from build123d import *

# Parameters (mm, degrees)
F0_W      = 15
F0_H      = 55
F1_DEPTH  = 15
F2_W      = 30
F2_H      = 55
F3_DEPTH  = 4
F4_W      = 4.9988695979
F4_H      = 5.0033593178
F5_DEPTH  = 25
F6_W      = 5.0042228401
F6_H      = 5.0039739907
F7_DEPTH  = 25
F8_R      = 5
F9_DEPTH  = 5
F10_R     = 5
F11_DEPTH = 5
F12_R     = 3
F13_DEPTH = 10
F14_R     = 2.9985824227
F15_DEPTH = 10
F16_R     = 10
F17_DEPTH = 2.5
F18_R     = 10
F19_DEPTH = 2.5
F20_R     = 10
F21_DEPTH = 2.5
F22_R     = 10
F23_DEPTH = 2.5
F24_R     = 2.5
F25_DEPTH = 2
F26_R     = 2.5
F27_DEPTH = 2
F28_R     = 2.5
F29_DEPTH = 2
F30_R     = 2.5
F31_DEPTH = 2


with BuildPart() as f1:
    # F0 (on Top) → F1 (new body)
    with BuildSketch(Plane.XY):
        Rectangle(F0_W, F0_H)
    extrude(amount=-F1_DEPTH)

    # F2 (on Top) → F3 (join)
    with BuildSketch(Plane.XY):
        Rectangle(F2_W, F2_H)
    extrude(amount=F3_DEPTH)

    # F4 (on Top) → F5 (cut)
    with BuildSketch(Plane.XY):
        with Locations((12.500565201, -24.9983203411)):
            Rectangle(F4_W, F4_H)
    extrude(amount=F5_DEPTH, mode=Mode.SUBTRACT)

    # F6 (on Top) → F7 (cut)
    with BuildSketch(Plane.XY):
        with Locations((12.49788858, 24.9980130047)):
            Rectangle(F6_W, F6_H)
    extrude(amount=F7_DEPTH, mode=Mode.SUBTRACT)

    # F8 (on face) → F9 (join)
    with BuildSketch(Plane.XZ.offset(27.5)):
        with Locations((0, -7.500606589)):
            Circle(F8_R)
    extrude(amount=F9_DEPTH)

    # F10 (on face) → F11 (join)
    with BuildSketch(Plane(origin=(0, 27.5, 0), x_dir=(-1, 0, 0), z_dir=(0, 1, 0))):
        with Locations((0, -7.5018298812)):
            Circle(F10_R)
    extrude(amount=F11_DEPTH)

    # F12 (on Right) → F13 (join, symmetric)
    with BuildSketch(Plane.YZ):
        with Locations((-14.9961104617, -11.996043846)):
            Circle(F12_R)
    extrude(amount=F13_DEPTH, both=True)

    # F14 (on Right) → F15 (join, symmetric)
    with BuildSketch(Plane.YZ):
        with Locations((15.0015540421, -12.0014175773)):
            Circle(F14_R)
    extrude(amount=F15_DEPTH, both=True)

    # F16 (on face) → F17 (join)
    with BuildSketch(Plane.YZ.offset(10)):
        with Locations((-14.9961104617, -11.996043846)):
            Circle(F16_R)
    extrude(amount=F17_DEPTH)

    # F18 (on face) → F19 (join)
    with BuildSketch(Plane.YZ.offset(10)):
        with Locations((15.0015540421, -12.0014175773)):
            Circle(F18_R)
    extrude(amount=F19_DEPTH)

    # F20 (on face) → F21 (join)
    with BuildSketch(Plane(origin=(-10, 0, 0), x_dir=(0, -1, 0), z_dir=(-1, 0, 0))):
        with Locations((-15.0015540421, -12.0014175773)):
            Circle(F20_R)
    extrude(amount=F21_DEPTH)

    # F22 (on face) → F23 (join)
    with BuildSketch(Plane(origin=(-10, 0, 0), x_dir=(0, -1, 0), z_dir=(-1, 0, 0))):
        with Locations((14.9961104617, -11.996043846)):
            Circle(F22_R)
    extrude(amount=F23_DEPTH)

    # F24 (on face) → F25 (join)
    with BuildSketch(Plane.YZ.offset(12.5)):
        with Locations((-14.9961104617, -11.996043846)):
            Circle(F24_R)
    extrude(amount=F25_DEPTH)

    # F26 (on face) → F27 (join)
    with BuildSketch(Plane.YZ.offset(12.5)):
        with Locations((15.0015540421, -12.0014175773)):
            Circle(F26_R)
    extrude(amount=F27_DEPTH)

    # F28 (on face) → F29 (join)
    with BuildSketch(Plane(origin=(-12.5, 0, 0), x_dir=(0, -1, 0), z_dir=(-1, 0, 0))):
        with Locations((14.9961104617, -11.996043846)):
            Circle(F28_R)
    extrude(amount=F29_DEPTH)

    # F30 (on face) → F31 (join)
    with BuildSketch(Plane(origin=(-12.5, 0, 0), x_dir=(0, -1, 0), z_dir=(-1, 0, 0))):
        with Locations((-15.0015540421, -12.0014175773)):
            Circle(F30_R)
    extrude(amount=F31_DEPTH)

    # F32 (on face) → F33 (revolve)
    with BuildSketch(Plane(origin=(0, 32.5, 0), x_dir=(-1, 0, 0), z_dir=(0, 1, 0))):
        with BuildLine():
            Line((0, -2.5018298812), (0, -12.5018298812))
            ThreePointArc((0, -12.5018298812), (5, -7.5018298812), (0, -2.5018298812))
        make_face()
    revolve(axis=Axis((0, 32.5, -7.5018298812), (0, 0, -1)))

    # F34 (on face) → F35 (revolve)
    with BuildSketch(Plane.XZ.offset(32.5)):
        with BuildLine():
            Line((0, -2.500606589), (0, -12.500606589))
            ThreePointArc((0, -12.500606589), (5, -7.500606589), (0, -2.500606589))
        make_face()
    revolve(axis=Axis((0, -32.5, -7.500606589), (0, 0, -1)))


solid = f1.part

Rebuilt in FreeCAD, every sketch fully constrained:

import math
import FreeCAD as App
import Part
import Sketcher
from FreeCAD import Vector


def add_polygon(sketch, points):
    """Adds a closed chain of lines whose ends are joined by coincident constraints."""
    first, n = sketch.GeometryCount, len(points)
    for a, b in zip(points, points[1:] + points[:1]):
        sketch.addGeometry(Part.LineSegment(App.Vector(*a, 0), App.Vector(*b, 0)), False)
    for i in range(n):
        sketch.addConstraint(Sketcher.Constraint("Coincident", first + i, 2, first + (i + 1) % n, 1))

doc = App.newDocument("Part")
body = doc.addObject("PartDesign::Body", "Body")

# Sketch on XY plane
sketch1 = body.newObject("Sketcher::SketchObject", "Sketch")
sketch1.AttachmentSupport = (doc.getObject("XY_Plane"), [""])
sketch1.MapMode = "FlatFace"
add_polygon(sketch1, [(-7.5, 27.5), (-7.5, -27.5), (7.5, -27.5), (7.5, 27.5)])  # lines 0-3
sketch1.addConstraint([
    Sketcher.Constraint("Vertical", 0),
    Sketcher.Constraint("Horizontal", 1),
    Sketcher.Constraint("Vertical", 2),
    Sketcher.Constraint("Horizontal", 3),
    Sketcher.Constraint("Symmetric", 0, 2, 2, 2, -1, 1),
    Sketcher.Constraint("DistanceX", 1, 1, 1, 2, 15.0),
    Sketcher.Constraint("DistanceY", 0, 2, 0, 1, 55.0),
])
pad1 = body.newObject("PartDesign::Pad", "Pad")
pad1.Profile = sketch1
pad1.Length = 15
pad1.Reversed = True

# Sketch on XY plane
sketch2 = body.newObject("Sketcher::SketchObject", "Sketch001")
sketch2.AttachmentSupport = (doc.getObject("XY_Plane"), [""])
sketch2.MapMode = "FlatFace"
add_polygon(sketch2, [(-15, 27.5), (-15, -27.5), (15, -27.5), (15, 27.5)])  # lines 0-3
sketch2.addConstraint([
    Sketcher.Constraint("Vertical", 0),
    Sketcher.Constraint("Horizontal", 1),
    Sketcher.Constraint("Vertical", 2),
    Sketcher.Constraint("Horizontal", 3),
    Sketcher.Constraint("Symmetric", 0, 2, 2, 2, -1, 1),
    Sketcher.Constraint("DistanceX", 1, 1, 1, 2, 30.0),
    Sketcher.Constraint("DistanceY", 0, 2, 0, 1, 55.0),
])
pad2 = body.newObject("PartDesign::Pad", "Pad001")
pad2.Profile = sketch2
pad2.Length = 4

# Sketch on XY plane
sketch3 = body.newObject("Sketcher::SketchObject", "Sketch002")
sketch3.AttachmentSupport = (doc.getObject("XY_Plane"), [""])
sketch3.MapMode = "FlatFace"
add_polygon(sketch3, [(10.00113, -22.496641), (10.00113, -27.5), (15, -27.5), (15, -22.496641)])  # lines 0-3
sketch3.addConstraint([
    Sketcher.Constraint("Vertical", 0),
    Sketcher.Constraint("Horizontal", 1),
    Sketcher.Constraint("Vertical", 2),
    Sketcher.Constraint("Horizontal", 3),
    Sketcher.Constraint("DistanceX", -1, 1, 1, 2, 15.0),
    Sketcher.Constraint("DistanceY", 0, 2, -1, 1, 27.5),
    Sketcher.Constraint("DistanceX", 1, 1, 1, 2, 4.99887),
    Sketcher.Constraint("DistanceY", 0, 2, 0, 1, 5.003359),
])
pocket1 = body.newObject("PartDesign::Pocket", "Pocket")
pocket1.Profile = sketch3
pocket1.Length = 25
pocket1.Reversed = True

# Sketch on XY plane
sketch4 = body.newObject("Sketcher::SketchObject", "Sketch003")
sketch4.AttachmentSupport = (doc.getObject("XY_Plane"), [""])
sketch4.MapMode = "FlatFace"
add_polygon(sketch4, [(9.995777, 27.5), (9.995777, 22.496026), (15, 22.496026), (15, 27.5)])  # lines 0-3
sketch4.addConstraint([
    Sketcher.Constraint("Vertical", 0),
    Sketcher.Constraint("Horizontal", 1),
    Sketcher.Constraint("Vertical", 2),
    Sketcher.Constraint("Horizontal", 3),
    Sketcher.Constraint("DistanceX", -1, 1, 1, 2, 15.0),
    Sketcher.Constraint("DistanceY", -1, 1, 2, 2, 27.5),
    Sketcher.Constraint("DistanceX", 1, 1, 1, 2, 5.004223),
    Sketcher.Constraint("DistanceY", 0, 2, 0, 1, 5.003974),
])
pocket2 = body.newObject("PartDesign::Pocket", "Pocket001")
pocket2.Profile = sketch4
pocket2.Length = 25
pocket2.Reversed = True

# Sketch on XZ plane
sketch5 = body.newObject("Sketcher::SketchObject", "Sketch004")
sketch5.AttachmentSupport = (doc.getObject("XZ_Plane"), [""])
sketch5.MapMode = "FlatFace"
sketch5.AttachmentOffset = App.Placement(Vector(0, 0, 27.5), App.Rotation())
sketch5.addGeometry(Part.Circle(Vector(0, -7.500607, 0), Vector(0, 0, 1), 5), False)
sketch5.addConstraint([
    Sketcher.Constraint("PointOnObject", 0, 3, -2),
    Sketcher.Constraint("Diameter", 0, 10.0),
    Sketcher.Constraint("DistanceY", 0, 3, -1, 1, 7.500607),
])
pad3 = body.newObject("PartDesign::Pad", "Pad002")
pad3.Profile = sketch5
pad3.Length = 5

# Sketch on XZ plane
sketch6 = body.newObject("Sketcher::SketchObject", "Sketch005")
sketch6.AttachmentSupport = (doc.getObject("XZ_Plane"), [""])
sketch6.MapMode = "FlatFace"
sketch6.AttachmentOffset = App.Placement(Vector(0, 0, -27.5), App.Rotation())
sketch6.addGeometry(Part.Circle(Vector(0, -7.50183, 0), Vector(0, 0, 1), 5), False)
sketch6.addConstraint([
    Sketcher.Constraint("PointOnObject", 0, 3, -2),
    Sketcher.Constraint("Diameter", 0, 10.0),
    Sketcher.Constraint("DistanceY", 0, 3, -1, 1, 7.50183),
])
pad4 = body.newObject("PartDesign::Pad", "Pad003")
pad4.Profile = sketch6
pad4.Length = 5
pad4.Reversed = True

# Sketch on YZ plane
sketch7 = body.newObject("Sketcher::SketchObject", "Sketch006")
sketch7.AttachmentSupport = (doc.getObject("YZ_Plane"), [""])
sketch7.MapMode = "FlatFace"
sketch7.addGeometry(Part.Circle(Vector(-14.99611, -11.996044, 0), Vector(0, 0, 1), 3), False)
sketch7.addConstraint([
    Sketcher.Constraint("Diameter", 0, 6.0),
    Sketcher.Constraint("DistanceX", 0, 3, -1, 1, 14.99611),
    Sketcher.Constraint("DistanceY", 0, 3, -1, 1, 11.996044),
])
pad5 = body.newObject("PartDesign::Pad", "Pad004")
pad5.Profile = sketch7
pad5.Length = 20
pad5.Midplane = True

# Sketch on YZ plane
sketch8 = body.newObject("Sketcher::SketchObject", "Sketch007")
sketch8.AttachmentSupport = (doc.getObject("YZ_Plane"), [""])
sketch8.MapMode = "FlatFace"
sketch8.addGeometry(Part.Circle(Vector(15.001554, -12.001418, 0), Vector(0, 0, 1), 2.998582), False)
sketch8.addConstraint([
    Sketcher.Constraint("Diameter", 0, 5.997165),
    Sketcher.Constraint("DistanceX", -1, 1, 0, 3, 15.001554),
    Sketcher.Constraint("DistanceY", 0, 3, -1, 1, 12.001418),
])
pad6 = body.newObject("PartDesign::Pad", "Pad005")
pad6.Profile = sketch8
pad6.Length = 20
pad6.Midplane = True

# Sketch on YZ plane
sketch9 = body.newObject("Sketcher::SketchObject", "Sketch008")
sketch9.AttachmentSupport = (doc.getObject("YZ_Plane"), [""])
sketch9.MapMode = "FlatFace"
sketch9.AttachmentOffset = App.Placement(Vector(0, 0, 10), App.Rotation())
sketch9.addGeometry(Part.Circle(Vector(-14.99611, -11.996044, 0), Vector(0, 0, 1), 10), False)
sketch9.addConstraint([
    Sketcher.Constraint("Diameter", 0, 20.0),
    Sketcher.Constraint("DistanceX", 0, 3, -1, 1, 14.99611),
    Sketcher.Constraint("DistanceY", 0, 3, -1, 1, 11.996044),
])
pad7 = body.newObject("PartDesign::Pad", "Pad006")
pad7.Profile = sketch9
pad7.Length = 2.5

# Sketch on YZ plane
sketch10 = body.newObject("Sketcher::SketchObject", "Sketch009")
sketch10.AttachmentSupport = (doc.getObject("YZ_Plane"), [""])
sketch10.MapMode = "FlatFace"
sketch10.AttachmentOffset = App.Placement(Vector(0, 0, 10), App.Rotation())
sketch10.addGeometry(Part.Circle(Vector(15.001554, -12.001418, 0), Vector(0, 0, 1), 10), False)
sketch10.addConstraint([
    Sketcher.Constraint("Diameter", 0, 20.0),
    Sketcher.Constraint("DistanceX", -1, 1, 0, 3, 15.001554),
    Sketcher.Constraint("DistanceY", 0, 3, -1, 1, 12.001418),
])
pad8 = body.newObject("PartDesign::Pad", "Pad007")
pad8.Profile = sketch10
pad8.Length = 2.5

# Sketch on YZ plane
sketch11 = body.newObject("Sketcher::SketchObject", "Sketch010")
sketch11.AttachmentSupport = (doc.getObject("YZ_Plane"), [""])
sketch11.MapMode = "FlatFace"
sketch11.AttachmentOffset = App.Placement(Vector(0, 0, -10), App.Rotation())
sketch11.addGeometry(Part.Circle(Vector(15.001554, -12.001418, 0), Vector(0, 0, 1), 10), False)
sketch11.addConstraint([
    Sketcher.Constraint("Diameter", 0, 20.0),
    Sketcher.Constraint("DistanceX", -1, 1, 0, 3, 15.001554),
    Sketcher.Constraint("DistanceY", 0, 3, -1, 1, 12.001418),
])
pad9 = body.newObject("PartDesign::Pad", "Pad008")
pad9.Profile = sketch11
pad9.Length = 2.5
pad9.Reversed = True

# Sketch on YZ plane
sketch12 = body.newObject("Sketcher::SketchObject", "Sketch011")
sketch12.AttachmentSupport = (doc.getObject("YZ_Plane"), [""])
sketch12.MapMode = "FlatFace"
sketch12.AttachmentOffset = App.Placement(Vector(0, 0, -10), App.Rotation())
sketch12.addGeometry(Part.Circle(Vector(-14.99611, -11.996044, 0), Vector(0, 0, 1), 10), False)
sketch12.addConstraint([
    Sketcher.Constraint("Diameter", 0, 20.0),
    Sketcher.Constraint("DistanceX", 0, 3, -1, 1, 14.99611),
    Sketcher.Constraint("DistanceY", 0, 3, -1, 1, 11.996044),
])
pad10 = body.newObject("PartDesign::Pad", "Pad009")
pad10.Profile = sketch12
pad10.Length = 2.5
pad10.Reversed = True

# Sketch on YZ plane
sketch13 = body.newObject("Sketcher::SketchObject", "Sketch012")
sketch13.AttachmentSupport = (doc.getObject("YZ_Plane"), [""])
sketch13.MapMode = "FlatFace"
sketch13.AttachmentOffset = App.Placement(Vector(0, 0, 12.5), App.Rotation())
sketch13.addGeometry(Part.Circle(Vector(-14.99611, -11.996044, 0), Vector(0, 0, 1), 2.5), False)
sketch13.addConstraint([
    Sketcher.Constraint("Diameter", 0, 5.0),
    Sketcher.Constraint("DistanceX", 0, 3, -1, 1, 14.99611),
    Sketcher.Constraint("DistanceY", 0, 3, -1, 1, 11.996044),
])
pad11 = body.newObject("PartDesign::Pad", "Pad010")
pad11.Profile = sketch13
pad11.Length = 2

# Sketch on YZ plane
sketch14 = body.newObject("Sketcher::SketchObject", "Sketch013")
sketch14.AttachmentSupport = (doc.getObject("YZ_Plane"), [""])
sketch14.MapMode = "FlatFace"
sketch14.AttachmentOffset = App.Placement(Vector(0, 0, 12.5), App.Rotation())
sketch14.addGeometry(Part.Circle(Vector(15.001554, -12.001418, 0), Vector(0, 0, 1), 2.5), False)
sketch14.addConstraint([
    Sketcher.Constraint("Diameter", 0, 5.0),
    Sketcher.Constraint("DistanceX", -1, 1, 0, 3, 15.001554),
    Sketcher.Constraint("DistanceY", 0, 3, -1, 1, 12.001418),
])
pad12 = body.newObject("PartDesign::Pad", "Pad011")
pad12.Profile = sketch14
pad12.Length = 2

# Sketch on YZ plane
sketch15 = body.newObject("Sketcher::SketchObject", "Sketch014")
sketch15.AttachmentSupport = (doc.getObject("YZ_Plane"), [""])
sketch15.MapMode = "FlatFace"
sketch15.AttachmentOffset = App.Placement(Vector(0, 0, -12.5), App.Rotation())
sketch15.addGeometry(Part.Circle(Vector(-14.99611, -11.996044, 0), Vector(0, 0, 1), 2.5), False)
sketch15.addConstraint([
    Sketcher.Constraint("Diameter", 0, 5.0),
    Sketcher.Constraint("DistanceX", 0, 3, -1, 1, 14.99611),
    Sketcher.Constraint("DistanceY", 0, 3, -1, 1, 11.996044),
])
pad13 = body.newObject("PartDesign::Pad", "Pad012")
pad13.Profile = sketch15
pad13.Length = 2
pad13.Reversed = True

# Sketch on YZ plane
sketch16 = body.newObject("Sketcher::SketchObject", "Sketch015")
sketch16.AttachmentSupport = (doc.getObject("YZ_Plane"), [""])
sketch16.MapMode = "FlatFace"
sketch16.AttachmentOffset = App.Placement(Vector(0, 0, -12.5), App.Rotation())
sketch16.addGeometry(Part.Circle(Vector(15.001554, -12.001418, 0), Vector(0, 0, 1), 2.5), False)
sketch16.addConstraint([
    Sketcher.Constraint("Diameter", 0, 5.0),
    Sketcher.Constraint("DistanceX", -1, 1, 0, 3, 15.001554),
    Sketcher.Constraint("DistanceY", 0, 3, -1, 1, 12.001418),
])
pad14 = body.newObject("PartDesign::Pad", "Pad013")
pad14.Profile = sketch16
pad14.Length = 2
pad14.Reversed = True

# Sketch on XZ plane
sketch17 = body.newObject("Sketcher::SketchObject", "Sketch016")
sketch17.AttachmentSupport = (doc.getObject("XZ_Plane"), [""])
sketch17.MapMode = "FlatFace"
sketch17.AttachmentOffset = App.Placement(Vector(0, 0, -32.5), App.Rotation())
sketch17.addGeometry([
    Part.LineSegment(Vector(0, -2.50183, 0), Vector(0, -12.50183, 0)),
    Part.ArcOfCircle(Part.Circle(Vector(0, -7.50183, 0), Vector(0, 0, 1), 5), math.radians(90), math.radians(270)),
], False)
sketch17.addConstraint([
    Sketcher.Constraint("Coincident", 0, 1, 1, 1),
    Sketcher.Constraint("Coincident", 1, 2, 0, 2),
    Sketcher.Constraint("Vertical", 0),
    Sketcher.Constraint("PointOnObject", 1, 3, -2),
    Sketcher.Constraint("PointOnObject", 0, 1, -2),
    Sketcher.Constraint("Radius", 1, 5.0),
    Sketcher.Constraint("DistanceY", 1, 3, -1, 1, 7.50183),
])
revolution = body.newObject("PartDesign::Revolution", "Revolution")
revolution.Profile = sketch17
revolution.ReferenceAxis = (sketch17, ["V_Axis"])
revolution.Angle = 360

# Sketch on XZ plane
sketch18 = body.newObject("Sketcher::SketchObject", "Sketch017")
sketch18.AttachmentSupport = (doc.getObject("XZ_Plane"), [""])
sketch18.MapMode = "FlatFace"
sketch18.AttachmentOffset = App.Placement(Vector(0, 0, 32.5), App.Rotation())
sketch18.addGeometry([
    Part.LineSegment(Vector(0, -2.500607, 0), Vector(0, -12.500607, 0)),
    Part.ArcOfCircle(Part.Circle(Vector(0, -7.500607, 0), Vector(0, 0, 1), 5), math.radians(-90), math.radians(90)),
], False)
sketch18.addConstraint([
    Sketcher.Constraint("Coincident", 0, 1, 1, 2),
    Sketcher.Constraint("Coincident", 1, 1, 0, 2),
    Sketcher.Constraint("Vertical", 0),
    Sketcher.Constraint("PointOnObject", 1, 3, -2),
    Sketcher.Constraint("PointOnObject", 0, 1, -2),
    Sketcher.Constraint("Radius", 1, 5.0),
    Sketcher.Constraint("DistanceY", 1, 3, -1, 1, 7.500607),
])
revolution2 = body.newObject("PartDesign::Revolution", "Revolution001")
revolution2.Profile = sketch18
revolution2.ReferenceAxis = (sketch18, ["V_Axis"])
revolution2.Angle = 360

doc.recompute()
